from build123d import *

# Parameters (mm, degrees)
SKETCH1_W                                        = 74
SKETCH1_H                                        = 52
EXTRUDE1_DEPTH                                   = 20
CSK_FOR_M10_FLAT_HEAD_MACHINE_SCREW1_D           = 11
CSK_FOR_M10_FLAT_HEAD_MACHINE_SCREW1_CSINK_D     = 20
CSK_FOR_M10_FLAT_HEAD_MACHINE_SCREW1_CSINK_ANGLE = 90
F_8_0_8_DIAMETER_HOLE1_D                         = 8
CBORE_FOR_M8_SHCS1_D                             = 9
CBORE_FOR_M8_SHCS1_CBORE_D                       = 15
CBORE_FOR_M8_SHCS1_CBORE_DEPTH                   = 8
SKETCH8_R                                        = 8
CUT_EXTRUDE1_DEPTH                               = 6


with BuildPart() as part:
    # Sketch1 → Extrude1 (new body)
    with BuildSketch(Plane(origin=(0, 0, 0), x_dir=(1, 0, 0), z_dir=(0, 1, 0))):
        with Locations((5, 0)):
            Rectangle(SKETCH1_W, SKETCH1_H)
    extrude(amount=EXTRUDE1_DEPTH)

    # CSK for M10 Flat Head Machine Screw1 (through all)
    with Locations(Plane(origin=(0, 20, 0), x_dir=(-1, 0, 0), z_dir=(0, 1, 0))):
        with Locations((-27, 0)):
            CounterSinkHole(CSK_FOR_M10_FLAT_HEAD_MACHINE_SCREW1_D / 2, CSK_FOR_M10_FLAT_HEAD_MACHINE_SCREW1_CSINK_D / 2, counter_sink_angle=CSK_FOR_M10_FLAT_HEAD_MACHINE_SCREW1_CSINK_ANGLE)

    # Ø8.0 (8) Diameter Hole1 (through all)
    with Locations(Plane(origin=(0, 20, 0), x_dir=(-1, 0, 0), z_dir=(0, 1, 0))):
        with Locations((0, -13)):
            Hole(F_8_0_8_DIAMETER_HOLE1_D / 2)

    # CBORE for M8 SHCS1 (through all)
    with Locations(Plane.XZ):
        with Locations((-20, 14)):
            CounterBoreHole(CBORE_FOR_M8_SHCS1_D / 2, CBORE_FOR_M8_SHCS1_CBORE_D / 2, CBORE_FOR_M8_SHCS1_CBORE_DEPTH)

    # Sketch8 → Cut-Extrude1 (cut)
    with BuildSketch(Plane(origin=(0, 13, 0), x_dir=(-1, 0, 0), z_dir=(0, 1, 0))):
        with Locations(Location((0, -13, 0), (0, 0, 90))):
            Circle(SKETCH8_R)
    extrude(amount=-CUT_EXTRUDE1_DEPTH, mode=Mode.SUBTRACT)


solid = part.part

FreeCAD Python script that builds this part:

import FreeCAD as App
import Part
import Sketcher


def add_polygon(sketch, points):
    """Adds a closed chain of lines whose ends are joined by coincident constraints."""
    first, n = sketch.GeometryCount, len(points)
    for a, b in zip(points, points[1:] + points[:1]):
        sketch.addGeometry(Part.LineSegment(App.Vector(*a, 0), App.Vector(*b, 0)), False)
    for i in range(n):
        sketch.addConstraint(Sketcher.Constraint("Coincident", first + i, 2, first + (i + 1) % n, 1))

doc = App.newDocument("Part")
body = doc.addObject("PartDesign::Body", "Body")

# Sketch on XZ plane
sketch1 = body.newObject("Sketcher::SketchObject", "Sketch")
sketch1.AttachmentSupport = (doc.getObject("XZ_Plane"), [""])
sketch1.MapMode = "FlatFace"
add_polygon(sketch1, [(-32, -26), (-32, 26), (42, 26), (42, -26)])  # lines 0-3
sketch1.addConstraint([
    Sketcher.Constraint("Vertical", 0),
    Sketcher.Constraint("Horizontal", 1),
    Sketcher.Constraint("Vertical", 2),
    Sketcher.Constraint("Horizontal", 3),
    Sketcher.Constraint("DistanceX", 1, 1, 1, 2, 74.0),
    Sketcher.Constraint("DistanceY", 0, 1, 0, 2, 52.0),
    Sketcher.Constraint("DistanceX", 0, 2, -1, 1, 32.0),
    Sketcher.Constraint("DistanceY", -1, 1, 0, 2, 26.0),
])
pad1 = body.newObject("PartDesign::Pad", "Pad")
pad1.Profile = sketch1
pad1.Length = 20
pad1.Reversed = True

# Sketch on XZ plane
sketch2 = body.newObject("Sketcher::SketchObject", "Sketch001")
sketch2.AttachmentSupport = (doc.getObject("XZ_Plane"), [""])
sketch2.MapMode = "FlatFace"
sketch2.AttachmentOffset = App.Placement(App.Vector(0, 0, -20), App.Rotation())
sketch2.addGeometry(Part.Circle(App.Vector(27, 0, 0), App.Vector(0, 0, 1), 6), False)
sketch2.addConstraint([
    Sketcher.Constraint("PointOnObject", 0, 3, -1),
    Sketcher.Constraint("Diameter", 0, 11.0),
    Sketcher.Constraint("DistanceX", -1, 1, 0, 3, 27.0),
])
doc.recompute()
hole = body.newObject("PartDesign::Hole", "Hole")
hole.Profile = sketch2
hole.ThreadType = "None"
hole.Diameter = 11
hole.DepthType = "ThroughAll"
hole.HoleCutType = "Countersink"
hole.HoleCutDiameter = 20
hole.HoleCutCountersinkAngle = 90
hole.Reversed = True

# Sketch on XZ plane
sketch3 = body.newObject("Sketcher::SketchObject", "Sketch002")
sketch3.AttachmentSupport = (doc.getObject("XZ_Plane"), [""])
sketch3.MapMode = "FlatFace"
sketch3.AttachmentOffset = App.Placement(App.Vector(0, 0, -20), App.Rotation())
sketch3.addGeometry(Part.Circle(App.Vector(0, -13, 0), App.Vector(0, 0, 1), 4), False)
sketch3.addConstraint([
    Sketcher.Constraint("PointOnObject", 0, 3, -2),
    Sketcher.Constraint("Diameter", 0, 8.0),
    Sketcher.Constraint("DistanceY", 0, 3, -1, 1, 13.0),
])
doc.recompute()
hole2 = body.newObject("PartDesign::Hole", "Hole001")
hole2.Profile = sketch3
hole2.ThreadType = "None"
hole2.Diameter = 8
hole2.DepthType = "ThroughAll"
hole2.Reversed = True

# Sketch on XZ plane
sketch4 = body.newObject("Sketcher::SketchObject", "Sketch003")
sketch4.AttachmentSupport = (doc.getObject("XZ_Plane"), [""])
sketch4.MapMode = "FlatFace"
sketch4.addGeometry(Part.Circle(App.Vector(-20, 14, 0), App.Vector(0, 0, 1), 4.5), False)
sketch4.addConstraint([
    Sketcher.Constraint("Diameter", 0, 9.0),
    Sketcher.Constraint("DistanceX", 0, 3, -1, 1, 20.0),
    Sketcher.Constraint("DistanceY", -1, 1, 0, 3, 14.0),
])
doc.recompute()
hole3 = body.newObject("PartDesign::Hole", "Hole002")
hole3.Profile = sketch4
hole3.ThreadType = "None"
hole3.Diameter = 9
hole3.DepthType = "ThroughAll"
hole3.HoleCutType = "Counterbore"
hole3.HoleCutDiameter = 15
hole3.HoleCutDepth = 8

# Sketch on XZ plane
sketch5 = body.newObject("Sketcher::SketchObject", "Sketch004")
sketch5.AttachmentSupport = (doc.getObject("XZ_Plane"), [""])
sketch5.MapMode = "FlatFace"
sketch5.AttachmentOffset = App.Placement(App.Vector(0, 0, -13), App.Rotation())
sketch5.addGeometry(Part.Circle(App.Vector(0, -13, 0), App.Vector(0, 0, 1), 8), False)
sketch5.addConstraint([
    Sketcher.Constraint("PointOnObject", 0, 3, -2),
    Sketcher.Constraint("Diameter", 0, 16.0),
    Sketcher.Constraint("DistanceY", 0, 3, -1, 1, 13.0),
])
pocket1 = body.newObject("PartDesign::Pocket", "Pocket")
pocket1.Profile = sketch5
pocket1.Length = 6
pocket1.Reversed = True

doc.recompute()
